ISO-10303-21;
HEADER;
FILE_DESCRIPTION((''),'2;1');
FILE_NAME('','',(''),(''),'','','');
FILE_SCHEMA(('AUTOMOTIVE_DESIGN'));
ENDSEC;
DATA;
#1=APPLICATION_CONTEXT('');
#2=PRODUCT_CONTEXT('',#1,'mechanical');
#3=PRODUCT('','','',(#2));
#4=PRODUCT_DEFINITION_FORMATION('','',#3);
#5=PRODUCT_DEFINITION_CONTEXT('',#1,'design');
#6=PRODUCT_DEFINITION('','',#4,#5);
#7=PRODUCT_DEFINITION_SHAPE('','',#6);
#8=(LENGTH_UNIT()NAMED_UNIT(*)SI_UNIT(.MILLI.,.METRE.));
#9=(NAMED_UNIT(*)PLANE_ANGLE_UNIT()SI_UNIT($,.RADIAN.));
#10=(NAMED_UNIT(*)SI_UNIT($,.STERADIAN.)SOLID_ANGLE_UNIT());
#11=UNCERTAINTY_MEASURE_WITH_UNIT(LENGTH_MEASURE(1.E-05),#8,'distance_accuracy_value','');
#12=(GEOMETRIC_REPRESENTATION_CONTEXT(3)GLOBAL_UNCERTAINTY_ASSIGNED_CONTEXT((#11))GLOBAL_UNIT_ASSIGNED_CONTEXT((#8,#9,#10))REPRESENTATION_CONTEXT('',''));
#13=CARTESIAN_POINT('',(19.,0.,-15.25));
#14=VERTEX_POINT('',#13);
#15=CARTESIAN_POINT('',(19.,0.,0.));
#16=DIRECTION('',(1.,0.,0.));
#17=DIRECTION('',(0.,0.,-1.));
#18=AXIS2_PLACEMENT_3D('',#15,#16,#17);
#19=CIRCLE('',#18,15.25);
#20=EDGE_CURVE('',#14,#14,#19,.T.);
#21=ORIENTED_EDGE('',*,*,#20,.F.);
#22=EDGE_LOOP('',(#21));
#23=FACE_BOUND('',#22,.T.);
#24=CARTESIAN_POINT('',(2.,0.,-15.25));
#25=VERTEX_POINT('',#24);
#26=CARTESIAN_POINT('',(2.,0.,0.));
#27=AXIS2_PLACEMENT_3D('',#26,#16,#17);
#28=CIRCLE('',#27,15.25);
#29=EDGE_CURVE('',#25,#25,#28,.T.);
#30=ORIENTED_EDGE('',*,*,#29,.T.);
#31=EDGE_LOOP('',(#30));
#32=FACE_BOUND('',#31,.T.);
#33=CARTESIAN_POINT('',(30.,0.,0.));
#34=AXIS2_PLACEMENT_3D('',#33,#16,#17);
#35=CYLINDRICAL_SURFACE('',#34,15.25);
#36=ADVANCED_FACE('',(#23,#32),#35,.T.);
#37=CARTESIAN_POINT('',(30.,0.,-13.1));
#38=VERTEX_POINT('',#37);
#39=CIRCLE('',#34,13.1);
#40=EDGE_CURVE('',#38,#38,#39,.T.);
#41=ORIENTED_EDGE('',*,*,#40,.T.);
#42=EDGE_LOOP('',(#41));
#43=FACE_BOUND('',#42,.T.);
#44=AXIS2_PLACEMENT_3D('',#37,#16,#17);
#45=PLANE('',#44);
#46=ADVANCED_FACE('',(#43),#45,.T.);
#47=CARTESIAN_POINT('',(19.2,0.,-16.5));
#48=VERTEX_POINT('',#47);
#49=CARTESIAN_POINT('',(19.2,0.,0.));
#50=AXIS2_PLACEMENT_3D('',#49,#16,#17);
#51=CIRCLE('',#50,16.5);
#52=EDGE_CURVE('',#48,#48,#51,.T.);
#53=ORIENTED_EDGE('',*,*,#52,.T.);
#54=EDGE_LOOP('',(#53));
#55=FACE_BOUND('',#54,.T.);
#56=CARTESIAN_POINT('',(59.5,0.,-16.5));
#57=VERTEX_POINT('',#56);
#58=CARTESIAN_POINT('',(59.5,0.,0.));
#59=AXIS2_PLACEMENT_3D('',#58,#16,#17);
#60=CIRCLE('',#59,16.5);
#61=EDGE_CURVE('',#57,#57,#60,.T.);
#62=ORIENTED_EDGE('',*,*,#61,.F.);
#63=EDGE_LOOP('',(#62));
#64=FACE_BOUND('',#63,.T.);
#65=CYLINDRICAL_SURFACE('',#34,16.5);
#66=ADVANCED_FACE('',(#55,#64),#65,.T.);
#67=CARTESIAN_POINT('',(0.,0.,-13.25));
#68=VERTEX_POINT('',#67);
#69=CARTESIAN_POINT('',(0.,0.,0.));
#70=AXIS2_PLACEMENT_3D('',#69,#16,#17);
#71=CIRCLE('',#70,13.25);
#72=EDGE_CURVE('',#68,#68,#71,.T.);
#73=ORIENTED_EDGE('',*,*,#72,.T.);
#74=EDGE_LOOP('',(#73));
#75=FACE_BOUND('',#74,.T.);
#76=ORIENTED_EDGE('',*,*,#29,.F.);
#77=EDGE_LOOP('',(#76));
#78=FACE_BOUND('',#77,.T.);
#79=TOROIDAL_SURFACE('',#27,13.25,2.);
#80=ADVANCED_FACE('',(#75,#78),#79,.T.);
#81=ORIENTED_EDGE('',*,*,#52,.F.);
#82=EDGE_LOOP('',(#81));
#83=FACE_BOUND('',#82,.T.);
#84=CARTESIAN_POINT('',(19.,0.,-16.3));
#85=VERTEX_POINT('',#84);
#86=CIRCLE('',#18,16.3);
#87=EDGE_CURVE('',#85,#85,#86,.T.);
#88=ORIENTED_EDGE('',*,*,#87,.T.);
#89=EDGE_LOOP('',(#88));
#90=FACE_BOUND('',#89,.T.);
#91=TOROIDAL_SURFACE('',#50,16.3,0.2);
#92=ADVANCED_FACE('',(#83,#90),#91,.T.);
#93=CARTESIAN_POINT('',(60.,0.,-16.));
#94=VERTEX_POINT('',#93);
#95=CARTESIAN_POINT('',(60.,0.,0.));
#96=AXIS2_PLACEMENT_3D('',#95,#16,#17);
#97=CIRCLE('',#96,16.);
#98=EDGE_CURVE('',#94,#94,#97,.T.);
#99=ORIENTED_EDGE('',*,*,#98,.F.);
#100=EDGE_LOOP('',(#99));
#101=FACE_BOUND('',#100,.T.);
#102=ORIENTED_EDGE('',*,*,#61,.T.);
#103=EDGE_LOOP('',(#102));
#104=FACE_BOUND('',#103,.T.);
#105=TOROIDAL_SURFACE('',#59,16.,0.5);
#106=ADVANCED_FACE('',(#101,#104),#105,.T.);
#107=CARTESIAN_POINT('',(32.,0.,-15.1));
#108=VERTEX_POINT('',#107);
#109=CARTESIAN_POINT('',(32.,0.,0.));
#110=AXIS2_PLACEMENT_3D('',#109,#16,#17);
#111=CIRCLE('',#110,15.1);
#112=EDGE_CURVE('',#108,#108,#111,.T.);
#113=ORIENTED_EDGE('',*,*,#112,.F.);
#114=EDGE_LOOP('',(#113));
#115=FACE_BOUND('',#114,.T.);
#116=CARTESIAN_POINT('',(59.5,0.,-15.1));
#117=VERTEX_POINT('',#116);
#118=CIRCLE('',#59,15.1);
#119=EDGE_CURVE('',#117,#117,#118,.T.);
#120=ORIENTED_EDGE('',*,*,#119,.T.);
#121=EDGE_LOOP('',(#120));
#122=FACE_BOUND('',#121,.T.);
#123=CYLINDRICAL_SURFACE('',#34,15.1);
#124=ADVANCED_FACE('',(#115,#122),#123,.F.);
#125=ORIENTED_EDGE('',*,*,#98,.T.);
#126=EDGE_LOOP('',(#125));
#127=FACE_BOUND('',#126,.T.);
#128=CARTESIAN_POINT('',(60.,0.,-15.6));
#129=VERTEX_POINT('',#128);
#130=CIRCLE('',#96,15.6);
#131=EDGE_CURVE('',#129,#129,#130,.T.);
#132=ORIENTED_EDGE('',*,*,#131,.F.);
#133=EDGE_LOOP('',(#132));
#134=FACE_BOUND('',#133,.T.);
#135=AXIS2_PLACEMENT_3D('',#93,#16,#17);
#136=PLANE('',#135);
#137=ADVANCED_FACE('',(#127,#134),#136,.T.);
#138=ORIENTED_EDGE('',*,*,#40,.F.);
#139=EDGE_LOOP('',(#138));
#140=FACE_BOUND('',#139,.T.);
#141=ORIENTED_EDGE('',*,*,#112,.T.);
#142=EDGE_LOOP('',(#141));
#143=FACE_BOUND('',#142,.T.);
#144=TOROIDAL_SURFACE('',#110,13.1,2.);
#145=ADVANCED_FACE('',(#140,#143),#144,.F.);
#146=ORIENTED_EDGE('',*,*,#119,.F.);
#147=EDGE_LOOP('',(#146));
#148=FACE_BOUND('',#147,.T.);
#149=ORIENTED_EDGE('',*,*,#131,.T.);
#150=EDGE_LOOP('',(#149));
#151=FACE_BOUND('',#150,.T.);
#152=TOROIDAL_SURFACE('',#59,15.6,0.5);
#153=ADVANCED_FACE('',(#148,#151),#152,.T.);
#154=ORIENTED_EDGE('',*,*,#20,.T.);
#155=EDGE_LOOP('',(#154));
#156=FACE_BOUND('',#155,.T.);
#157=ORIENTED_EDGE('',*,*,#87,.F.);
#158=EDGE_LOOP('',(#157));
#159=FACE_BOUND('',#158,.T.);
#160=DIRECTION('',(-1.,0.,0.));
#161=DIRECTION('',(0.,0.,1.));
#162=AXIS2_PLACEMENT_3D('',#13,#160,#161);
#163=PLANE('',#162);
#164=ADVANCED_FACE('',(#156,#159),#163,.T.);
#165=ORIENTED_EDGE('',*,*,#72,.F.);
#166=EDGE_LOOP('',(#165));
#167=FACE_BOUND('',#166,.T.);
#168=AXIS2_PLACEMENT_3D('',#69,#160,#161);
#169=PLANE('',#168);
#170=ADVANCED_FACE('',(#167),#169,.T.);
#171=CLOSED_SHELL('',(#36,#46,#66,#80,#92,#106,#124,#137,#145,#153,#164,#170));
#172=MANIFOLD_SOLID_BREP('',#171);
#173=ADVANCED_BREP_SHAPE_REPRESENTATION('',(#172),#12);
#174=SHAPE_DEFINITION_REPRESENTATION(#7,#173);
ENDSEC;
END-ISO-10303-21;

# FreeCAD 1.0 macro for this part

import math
import FreeCAD as App
import Part
import Sketcher
from FreeCAD import Vector
Q = App.Units.Quantity

doc = App.newDocument("Part")
body = doc.addObject("PartDesign::Body", "Body")

# Sketch on XZ plane
sketch1 = body.newObject("Sketcher::SketchObject", "Sketch")
sketch1.AttachmentSupport = (doc.getObject("XZ_Plane"), [""])
sketch1.MapMode = "FlatFace"
sketch1.addGeometry([
    Part.LineSegment(Vector(0, -13.25, 0), Vector(0, 0, 0)),  # 0
    Part.LineSegment(Vector(0, 0, 0), Vector(30, 0, 0)),  # 1
    Part.LineSegment(Vector(30, 0, 0), Vector(30, -13.1, 0)),  # 2
    Part.ArcOfCircle(Part.Circle(Vector(32, -13.1, 0), Vector(0, 0, 1), 2), math.radians(-180), math.radians(-90)),  # 3
    Part.LineSegment(Vector(32, -15.1, 0), Vector(59.5, -15.1, 0)),  # 4
    Part.ArcOfCircle(Part.Circle(Vector(59.5, -15.6, 0), Vector(0, 0, 1), 0.5), math.radians(0), math.radians(90)),  # 5
    Part.LineSegment(Vector(60, -15.6, 0), Vector(60, -16, 0)),  # 6
    Part.ArcOfCircle(Part.Circle(Vector(59.5, -16, 0), Vector(0, 0, 1), 0.5), math.radians(-90), math.radians(0)),  # 7
    Part.LineSegment(Vector(59.5, -16.5, 0), Vector(19.2, -16.5, 0)),  # 8
    Part.ArcOfCircle(Part.Circle(Vector(19.2, -16.3, 0), Vector(0, 0, 1), 0.2), math.radians(-180), math.radians(-90)),  # 9
    Part.LineSegment(Vector(19, -16.3, 0), Vector(19, -15.25, 0)),  # 10
    Part.LineSegment(Vector(19, -15.25, 0), Vector(2, -15.25, 0)),  # 11
    Part.ArcOfCircle(Part.Circle(Vector(2, -13.25, 0), Vector(0, 0, 1), 2), math.radians(-180), math.radians(-90)),  # 12
], False)
sketch1.addConstraint([
    Sketcher.Constraint("Coincident", 0, 2, 1, 1),
    Sketcher.Constraint("Coincident", 1, 2, 2, 1),
    Sketcher.Constraint("Tangent", 2, 2, 3, 1),
    Sketcher.Constraint("Tangent", 3, 2, 4, 1),
    Sketcher.Constraint("Tangent", 4, 2, 5, 2),
    Sketcher.Constraint("Tangent", 5, 1, 6, 1),
    Sketcher.Constraint("Tangent", 6, 2, 7, 2),
    Sketcher.Constraint("Tangent", 7, 1, 8, 1),
    Sketcher.Constraint("Tangent", 8, 2, 9, 2),
    Sketcher.Constraint("Tangent", 9, 1, 10, 1),
    Sketcher.Constraint("Coincident", 10, 2, 11, 1),
    Sketcher.Constraint("Tangent", 11, 2, 12, 2),
    Sketcher.Constraint("Tangent", 12, 1, 0, 1),
    Sketcher.Constraint("Vertical", 0),
    Sketcher.Constraint("Horizontal", 1),
    Sketcher.Constraint("Vertical", 2),
    Sketcher.Constraint("Horizontal", 4),
    Sketcher.Constraint("Vertical", 6),
    Sketcher.Constraint("Horizontal", 8),
    Sketcher.Constraint("Vertical", 10),
    Sketcher.Constraint("Horizontal", 11),
    Sketcher.Constraint("Coincident", 0, 2, -1, 1),
    Sketcher.Constraint("Equal", 5, 7),
    Sketcher.Constraint("Equal", 3, 12),
    Sketcher.Constraint("Radius", 3, Q("2 mm")),
    Sketcher.Constraint("Radius", 5, Q("0.5 mm")),
    Sketcher.Constraint("Radius", 9, Q("0.2 mm")),
    Sketcher.Constraint("DistanceX", 1, 1, 1, 2, Q("30 mm")),
    Sketcher.Constraint("DistanceX", 11, 2, 11, 1, Q("17 mm")),
    Sketcher.Constraint("DistanceX", 4, 1, 4, 2, Q("27.5 mm")),
    Sketcher.Constraint("DistanceY", 2, 2, 2, 1, Q("13.1 mm")),
    Sketcher.Constraint("DistanceY", 6, 2, 6, 1, Q("0.4 mm")),
    Sketcher.Constraint("DistanceY", 0, 1, 0, 2, Q("13.25 mm")),
])
revolution = body.newObject("PartDesign::Revolution", "Revolution")
revolution.Profile = sketch1
revolution.ReferenceAxis = (sketch1, ["H_Axis"])
revolution.Angle = 360

doc.recompute()
